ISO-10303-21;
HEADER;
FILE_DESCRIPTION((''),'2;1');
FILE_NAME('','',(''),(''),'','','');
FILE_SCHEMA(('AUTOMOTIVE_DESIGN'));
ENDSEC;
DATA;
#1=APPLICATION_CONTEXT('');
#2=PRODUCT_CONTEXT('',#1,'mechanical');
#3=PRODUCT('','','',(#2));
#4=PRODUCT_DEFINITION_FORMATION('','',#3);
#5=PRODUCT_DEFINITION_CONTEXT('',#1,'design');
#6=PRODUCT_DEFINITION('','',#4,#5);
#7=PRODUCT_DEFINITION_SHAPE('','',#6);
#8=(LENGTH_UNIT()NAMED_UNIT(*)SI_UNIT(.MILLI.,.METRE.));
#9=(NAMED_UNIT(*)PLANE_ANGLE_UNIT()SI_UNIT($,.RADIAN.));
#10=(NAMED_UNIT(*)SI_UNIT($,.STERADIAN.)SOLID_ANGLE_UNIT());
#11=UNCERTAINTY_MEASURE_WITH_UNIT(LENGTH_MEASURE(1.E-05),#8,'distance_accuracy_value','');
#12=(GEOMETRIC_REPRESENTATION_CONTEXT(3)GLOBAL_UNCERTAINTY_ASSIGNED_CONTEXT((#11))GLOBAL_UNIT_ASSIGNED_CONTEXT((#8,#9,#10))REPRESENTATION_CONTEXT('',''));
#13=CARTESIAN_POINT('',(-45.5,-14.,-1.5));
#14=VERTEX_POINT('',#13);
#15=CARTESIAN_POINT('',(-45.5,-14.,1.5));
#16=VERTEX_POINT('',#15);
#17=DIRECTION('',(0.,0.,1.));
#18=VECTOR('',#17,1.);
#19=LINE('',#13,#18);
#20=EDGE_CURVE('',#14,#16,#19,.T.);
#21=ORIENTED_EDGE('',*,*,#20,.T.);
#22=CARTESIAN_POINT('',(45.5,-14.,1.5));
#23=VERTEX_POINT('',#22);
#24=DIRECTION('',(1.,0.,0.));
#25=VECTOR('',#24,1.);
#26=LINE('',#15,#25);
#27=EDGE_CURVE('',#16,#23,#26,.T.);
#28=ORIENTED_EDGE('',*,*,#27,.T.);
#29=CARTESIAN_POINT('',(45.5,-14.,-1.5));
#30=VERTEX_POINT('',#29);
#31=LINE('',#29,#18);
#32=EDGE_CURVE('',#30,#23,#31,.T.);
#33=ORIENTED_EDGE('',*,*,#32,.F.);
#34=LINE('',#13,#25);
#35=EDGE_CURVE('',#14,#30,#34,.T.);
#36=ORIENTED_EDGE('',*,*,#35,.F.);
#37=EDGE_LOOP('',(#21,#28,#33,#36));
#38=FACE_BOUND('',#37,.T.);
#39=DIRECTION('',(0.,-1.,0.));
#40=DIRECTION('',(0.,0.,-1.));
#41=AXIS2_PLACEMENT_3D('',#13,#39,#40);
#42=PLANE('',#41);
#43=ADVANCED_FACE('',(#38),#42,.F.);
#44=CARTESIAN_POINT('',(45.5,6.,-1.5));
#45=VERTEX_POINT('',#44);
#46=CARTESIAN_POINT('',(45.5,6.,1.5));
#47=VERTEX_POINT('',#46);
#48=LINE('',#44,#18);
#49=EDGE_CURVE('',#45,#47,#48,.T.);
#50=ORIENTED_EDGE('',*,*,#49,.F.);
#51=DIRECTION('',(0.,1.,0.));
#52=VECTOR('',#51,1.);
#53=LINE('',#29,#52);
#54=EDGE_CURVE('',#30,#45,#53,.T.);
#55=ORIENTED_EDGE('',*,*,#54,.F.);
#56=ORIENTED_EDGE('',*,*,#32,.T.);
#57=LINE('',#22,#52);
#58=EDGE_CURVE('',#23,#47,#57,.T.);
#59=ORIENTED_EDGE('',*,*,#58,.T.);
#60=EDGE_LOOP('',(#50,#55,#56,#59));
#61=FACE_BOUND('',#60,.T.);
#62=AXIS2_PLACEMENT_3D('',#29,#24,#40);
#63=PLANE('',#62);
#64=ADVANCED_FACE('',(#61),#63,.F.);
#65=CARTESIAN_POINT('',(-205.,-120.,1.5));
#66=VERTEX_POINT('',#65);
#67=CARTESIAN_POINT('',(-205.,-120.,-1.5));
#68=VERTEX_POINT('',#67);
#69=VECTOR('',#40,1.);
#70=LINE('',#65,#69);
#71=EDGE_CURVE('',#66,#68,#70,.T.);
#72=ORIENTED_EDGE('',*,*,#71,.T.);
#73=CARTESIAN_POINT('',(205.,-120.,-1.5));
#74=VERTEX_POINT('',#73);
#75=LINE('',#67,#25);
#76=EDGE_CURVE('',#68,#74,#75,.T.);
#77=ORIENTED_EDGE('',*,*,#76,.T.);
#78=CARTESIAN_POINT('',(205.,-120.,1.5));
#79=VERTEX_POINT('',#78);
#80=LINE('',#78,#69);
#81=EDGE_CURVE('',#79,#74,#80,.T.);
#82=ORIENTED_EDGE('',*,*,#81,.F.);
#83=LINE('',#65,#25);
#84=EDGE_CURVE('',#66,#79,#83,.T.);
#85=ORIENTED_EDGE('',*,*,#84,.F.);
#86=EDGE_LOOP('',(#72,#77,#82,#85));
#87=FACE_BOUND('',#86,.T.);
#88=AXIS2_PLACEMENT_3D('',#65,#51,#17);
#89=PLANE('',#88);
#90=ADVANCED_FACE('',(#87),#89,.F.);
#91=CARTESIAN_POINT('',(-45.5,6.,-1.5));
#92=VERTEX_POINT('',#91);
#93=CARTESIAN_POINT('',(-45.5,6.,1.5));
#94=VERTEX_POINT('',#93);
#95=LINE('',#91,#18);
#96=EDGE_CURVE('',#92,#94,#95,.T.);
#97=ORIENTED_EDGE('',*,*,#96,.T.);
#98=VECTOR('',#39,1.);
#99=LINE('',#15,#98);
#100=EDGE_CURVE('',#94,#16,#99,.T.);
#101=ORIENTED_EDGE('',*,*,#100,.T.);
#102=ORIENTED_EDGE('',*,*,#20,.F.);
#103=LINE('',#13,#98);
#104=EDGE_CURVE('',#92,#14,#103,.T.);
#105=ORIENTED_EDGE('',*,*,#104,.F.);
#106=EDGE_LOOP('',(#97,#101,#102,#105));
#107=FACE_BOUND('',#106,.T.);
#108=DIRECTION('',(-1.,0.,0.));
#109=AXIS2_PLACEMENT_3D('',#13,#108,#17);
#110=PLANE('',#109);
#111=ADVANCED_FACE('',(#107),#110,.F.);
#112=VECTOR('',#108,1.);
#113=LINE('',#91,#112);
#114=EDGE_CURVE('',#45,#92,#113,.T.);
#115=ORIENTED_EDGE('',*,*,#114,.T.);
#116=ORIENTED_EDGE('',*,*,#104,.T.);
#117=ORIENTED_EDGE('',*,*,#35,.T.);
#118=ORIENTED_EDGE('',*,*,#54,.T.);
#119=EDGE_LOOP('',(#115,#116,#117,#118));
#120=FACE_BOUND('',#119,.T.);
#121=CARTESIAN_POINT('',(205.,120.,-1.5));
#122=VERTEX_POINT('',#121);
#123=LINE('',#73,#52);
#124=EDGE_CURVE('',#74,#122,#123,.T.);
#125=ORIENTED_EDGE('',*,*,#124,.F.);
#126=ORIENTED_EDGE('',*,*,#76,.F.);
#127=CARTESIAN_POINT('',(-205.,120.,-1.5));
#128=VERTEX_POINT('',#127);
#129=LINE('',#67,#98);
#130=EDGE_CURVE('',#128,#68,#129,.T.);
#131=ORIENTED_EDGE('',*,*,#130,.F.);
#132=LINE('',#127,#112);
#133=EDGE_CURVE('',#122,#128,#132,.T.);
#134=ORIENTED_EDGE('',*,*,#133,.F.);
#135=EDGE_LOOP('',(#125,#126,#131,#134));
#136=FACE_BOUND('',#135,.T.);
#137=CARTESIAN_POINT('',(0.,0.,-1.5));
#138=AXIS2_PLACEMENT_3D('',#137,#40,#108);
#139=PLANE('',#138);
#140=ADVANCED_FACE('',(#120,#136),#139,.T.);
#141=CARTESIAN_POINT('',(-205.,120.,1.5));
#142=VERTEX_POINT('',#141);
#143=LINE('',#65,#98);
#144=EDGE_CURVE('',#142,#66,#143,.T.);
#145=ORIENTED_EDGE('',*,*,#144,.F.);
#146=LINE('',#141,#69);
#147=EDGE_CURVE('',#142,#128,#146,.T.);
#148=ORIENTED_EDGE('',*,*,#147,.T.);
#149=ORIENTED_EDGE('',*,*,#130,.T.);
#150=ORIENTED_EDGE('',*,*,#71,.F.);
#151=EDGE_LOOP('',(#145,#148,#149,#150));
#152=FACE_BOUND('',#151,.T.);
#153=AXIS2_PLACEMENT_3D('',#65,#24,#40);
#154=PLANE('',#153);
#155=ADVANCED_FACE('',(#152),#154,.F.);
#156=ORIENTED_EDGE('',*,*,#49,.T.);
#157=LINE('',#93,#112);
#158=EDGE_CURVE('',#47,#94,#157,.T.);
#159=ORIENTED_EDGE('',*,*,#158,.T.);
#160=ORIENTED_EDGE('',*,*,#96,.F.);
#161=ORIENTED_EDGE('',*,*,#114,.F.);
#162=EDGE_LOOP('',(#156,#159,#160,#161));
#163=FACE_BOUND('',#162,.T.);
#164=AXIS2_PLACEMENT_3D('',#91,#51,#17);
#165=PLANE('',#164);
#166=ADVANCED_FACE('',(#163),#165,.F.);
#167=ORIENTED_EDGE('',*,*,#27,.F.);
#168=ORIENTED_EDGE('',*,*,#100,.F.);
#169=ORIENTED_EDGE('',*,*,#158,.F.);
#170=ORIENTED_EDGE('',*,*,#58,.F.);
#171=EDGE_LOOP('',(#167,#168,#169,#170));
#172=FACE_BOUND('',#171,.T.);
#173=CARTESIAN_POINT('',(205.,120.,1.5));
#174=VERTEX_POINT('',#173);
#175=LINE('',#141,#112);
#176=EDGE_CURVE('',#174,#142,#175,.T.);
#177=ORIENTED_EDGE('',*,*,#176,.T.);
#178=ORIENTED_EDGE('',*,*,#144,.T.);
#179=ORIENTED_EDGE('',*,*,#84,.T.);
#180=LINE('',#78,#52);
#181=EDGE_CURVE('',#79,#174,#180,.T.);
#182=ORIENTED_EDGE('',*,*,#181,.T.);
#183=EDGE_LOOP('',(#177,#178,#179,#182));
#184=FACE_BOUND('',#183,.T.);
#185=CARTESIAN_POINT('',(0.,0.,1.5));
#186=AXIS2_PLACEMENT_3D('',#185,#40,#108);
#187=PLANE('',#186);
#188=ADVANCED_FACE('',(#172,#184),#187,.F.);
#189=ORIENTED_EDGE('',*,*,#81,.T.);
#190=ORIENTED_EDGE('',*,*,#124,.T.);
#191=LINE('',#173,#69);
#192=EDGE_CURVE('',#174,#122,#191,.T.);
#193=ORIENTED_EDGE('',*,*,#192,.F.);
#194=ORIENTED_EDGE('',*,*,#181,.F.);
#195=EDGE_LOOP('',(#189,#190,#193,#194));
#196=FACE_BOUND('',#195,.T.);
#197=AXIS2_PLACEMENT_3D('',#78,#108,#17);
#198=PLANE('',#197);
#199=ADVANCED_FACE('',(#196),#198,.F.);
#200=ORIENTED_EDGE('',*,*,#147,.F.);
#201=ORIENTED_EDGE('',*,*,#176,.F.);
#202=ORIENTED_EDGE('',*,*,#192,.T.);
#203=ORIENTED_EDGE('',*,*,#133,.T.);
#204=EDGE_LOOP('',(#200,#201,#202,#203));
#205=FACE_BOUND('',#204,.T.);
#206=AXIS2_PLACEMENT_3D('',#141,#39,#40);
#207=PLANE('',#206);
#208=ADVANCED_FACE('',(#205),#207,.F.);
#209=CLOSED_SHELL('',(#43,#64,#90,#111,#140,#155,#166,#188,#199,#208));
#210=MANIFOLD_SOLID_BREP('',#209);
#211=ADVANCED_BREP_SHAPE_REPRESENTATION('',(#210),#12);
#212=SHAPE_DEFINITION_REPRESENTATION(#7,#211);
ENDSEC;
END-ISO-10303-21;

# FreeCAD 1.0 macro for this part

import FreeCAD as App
import Part
import Sketcher
Q = App.Units.Quantity

doc = App.newDocument("Part")
params = doc.addObject("Spreadsheet::Sheet", "Params")
for row, (alias, value) in enumerate([
    ("sketch1_width", "410 mm"),
    ("sketch1_height", "240 mm"),
    ("pad1_length", "3 mm"),
    ("sketch2_width", "91 mm"),
    ("sketch2_height", "20 mm"),
], start=1):
    params.set(f"A{row}", alias)
    params.set(f"B{row}", "=" + value)
    params.setAlias(f"B{row}", alias)

body = doc.addObject("PartDesign::Body", "Body")

# Sketch on XY plane
sketch1 = doc.addObject("Sketcher::SketchObject", "Sketch")
body.addObject(sketch1)
sketch1.AttachmentSupport = (doc.XY_Plane, [""])
sketch1.MapMode = "FlatFace"
sketch1.addGeometry([
    Part.LineSegment(App.Vector(-205, 120, 0), App.Vector(-205, -120, 0)),
    Part.LineSegment(App.Vector(-205, -120, 0), App.Vector(205, -120, 0)),
    Part.LineSegment(App.Vector(205, -120, 0), App.Vector(205, 120, 0)),
    Part.LineSegment(App.Vector(205, 120, 0), App.Vector(-205, 120, 0)),
], False)
sketch1.addConstraint([
    Sketcher.Constraint("Coincident", 0, 2, 1, 1),
    Sketcher.Constraint("Coincident", 1, 2, 2, 1),
    Sketcher.Constraint("Coincident", 2, 2, 3, 1),
    Sketcher.Constraint("Coincident", 3, 2, 0, 1),
    Sketcher.Constraint("Vertical", 0),
    Sketcher.Constraint("Horizontal", 1),
    Sketcher.Constraint("Vertical", 2),
    Sketcher.Constraint("Horizontal", 3),
    Sketcher.Constraint("Symmetric", 0, 2, 2, 2, -1, 1),
    Sketcher.Constraint("DistanceX", 1, 1, 1, 2, Q("410 mm")),
    Sketcher.Constraint("DistanceY", 0, 2, 0, 1, Q("240 mm")),
])
sketch1.setExpression("Constraints[9]", "Params.sketch1_width")
sketch1.setExpression("Constraints[10]", "Params.sketch1_height")
pad1 = doc.addObject("PartDesign::Pad", "Pad")
body.addObject(pad1)
pad1.Profile = sketch1
pad1.setExpression("Length", "Params.pad1_length")
pad1.Midplane = True

# Sketch on XY plane
sketch2 = doc.addObject("Sketcher::SketchObject", "Sketch001")
body.addObject(sketch2)
sketch2.AttachmentSupport = (doc.XY_Plane, [""])
sketch2.MapMode = "FlatFace"
sketch2.AttachmentOffset = App.Placement(App.Vector(0, 0, 1.5), App.Rotation())
sketch2.addGeometry([
    Part.LineSegment(App.Vector(-46, 6, 0), App.Vector(-46, -14, 0)),
    Part.LineSegment(App.Vector(-46, -14, 0), App.Vector(46, -14, 0)),
    Part.LineSegment(App.Vector(46, -14, 0), App.Vector(46, 6, 0)),
    Part.LineSegment(App.Vector(46, 6, 0), App.Vector(-46, 6, 0)),
], False)
sketch2.addConstraint([
    Sketcher.Constraint("Coincident", 0, 2, 1, 1),
    Sketcher.Constraint("Coincident", 1, 2, 2, 1),
    Sketcher.Constraint("Coincident", 2, 2, 3, 1),
    Sketcher.Constraint("Coincident", 3, 2, 0, 1),
    Sketcher.Constraint("Vertical", 0),
    Sketcher.Constraint("Horizontal", 1),
    Sketcher.Constraint("Vertical", 2),
    Sketcher.Constraint("Horizontal", 3),
    Sketcher.Constraint("DistanceX", 1, 1, 1, 2, Q("91 mm")),
    Sketcher.Constraint("DistanceY", 0, 2, 0, 1, Q("20 mm")),
    Sketcher.Constraint("DistanceY", 0, 2, -1, 1, Q("14 mm")),
    Sketcher.Constraint("DistanceX", 0, 2, -1, 1, Q("45.5 mm")),
])
sketch2.setExpression("Constraints[8]", "Params.sketch2_width")
sketch2.setExpression("Constraints[9]", "Params.sketch2_height")
pocket1 = doc.addObject("PartDesign::Pocket", "Pocket")
body.addObject(pocket1)
pocket1.Profile = sketch2
pocket1.Type = "ThroughAll"

doc.recompute()
